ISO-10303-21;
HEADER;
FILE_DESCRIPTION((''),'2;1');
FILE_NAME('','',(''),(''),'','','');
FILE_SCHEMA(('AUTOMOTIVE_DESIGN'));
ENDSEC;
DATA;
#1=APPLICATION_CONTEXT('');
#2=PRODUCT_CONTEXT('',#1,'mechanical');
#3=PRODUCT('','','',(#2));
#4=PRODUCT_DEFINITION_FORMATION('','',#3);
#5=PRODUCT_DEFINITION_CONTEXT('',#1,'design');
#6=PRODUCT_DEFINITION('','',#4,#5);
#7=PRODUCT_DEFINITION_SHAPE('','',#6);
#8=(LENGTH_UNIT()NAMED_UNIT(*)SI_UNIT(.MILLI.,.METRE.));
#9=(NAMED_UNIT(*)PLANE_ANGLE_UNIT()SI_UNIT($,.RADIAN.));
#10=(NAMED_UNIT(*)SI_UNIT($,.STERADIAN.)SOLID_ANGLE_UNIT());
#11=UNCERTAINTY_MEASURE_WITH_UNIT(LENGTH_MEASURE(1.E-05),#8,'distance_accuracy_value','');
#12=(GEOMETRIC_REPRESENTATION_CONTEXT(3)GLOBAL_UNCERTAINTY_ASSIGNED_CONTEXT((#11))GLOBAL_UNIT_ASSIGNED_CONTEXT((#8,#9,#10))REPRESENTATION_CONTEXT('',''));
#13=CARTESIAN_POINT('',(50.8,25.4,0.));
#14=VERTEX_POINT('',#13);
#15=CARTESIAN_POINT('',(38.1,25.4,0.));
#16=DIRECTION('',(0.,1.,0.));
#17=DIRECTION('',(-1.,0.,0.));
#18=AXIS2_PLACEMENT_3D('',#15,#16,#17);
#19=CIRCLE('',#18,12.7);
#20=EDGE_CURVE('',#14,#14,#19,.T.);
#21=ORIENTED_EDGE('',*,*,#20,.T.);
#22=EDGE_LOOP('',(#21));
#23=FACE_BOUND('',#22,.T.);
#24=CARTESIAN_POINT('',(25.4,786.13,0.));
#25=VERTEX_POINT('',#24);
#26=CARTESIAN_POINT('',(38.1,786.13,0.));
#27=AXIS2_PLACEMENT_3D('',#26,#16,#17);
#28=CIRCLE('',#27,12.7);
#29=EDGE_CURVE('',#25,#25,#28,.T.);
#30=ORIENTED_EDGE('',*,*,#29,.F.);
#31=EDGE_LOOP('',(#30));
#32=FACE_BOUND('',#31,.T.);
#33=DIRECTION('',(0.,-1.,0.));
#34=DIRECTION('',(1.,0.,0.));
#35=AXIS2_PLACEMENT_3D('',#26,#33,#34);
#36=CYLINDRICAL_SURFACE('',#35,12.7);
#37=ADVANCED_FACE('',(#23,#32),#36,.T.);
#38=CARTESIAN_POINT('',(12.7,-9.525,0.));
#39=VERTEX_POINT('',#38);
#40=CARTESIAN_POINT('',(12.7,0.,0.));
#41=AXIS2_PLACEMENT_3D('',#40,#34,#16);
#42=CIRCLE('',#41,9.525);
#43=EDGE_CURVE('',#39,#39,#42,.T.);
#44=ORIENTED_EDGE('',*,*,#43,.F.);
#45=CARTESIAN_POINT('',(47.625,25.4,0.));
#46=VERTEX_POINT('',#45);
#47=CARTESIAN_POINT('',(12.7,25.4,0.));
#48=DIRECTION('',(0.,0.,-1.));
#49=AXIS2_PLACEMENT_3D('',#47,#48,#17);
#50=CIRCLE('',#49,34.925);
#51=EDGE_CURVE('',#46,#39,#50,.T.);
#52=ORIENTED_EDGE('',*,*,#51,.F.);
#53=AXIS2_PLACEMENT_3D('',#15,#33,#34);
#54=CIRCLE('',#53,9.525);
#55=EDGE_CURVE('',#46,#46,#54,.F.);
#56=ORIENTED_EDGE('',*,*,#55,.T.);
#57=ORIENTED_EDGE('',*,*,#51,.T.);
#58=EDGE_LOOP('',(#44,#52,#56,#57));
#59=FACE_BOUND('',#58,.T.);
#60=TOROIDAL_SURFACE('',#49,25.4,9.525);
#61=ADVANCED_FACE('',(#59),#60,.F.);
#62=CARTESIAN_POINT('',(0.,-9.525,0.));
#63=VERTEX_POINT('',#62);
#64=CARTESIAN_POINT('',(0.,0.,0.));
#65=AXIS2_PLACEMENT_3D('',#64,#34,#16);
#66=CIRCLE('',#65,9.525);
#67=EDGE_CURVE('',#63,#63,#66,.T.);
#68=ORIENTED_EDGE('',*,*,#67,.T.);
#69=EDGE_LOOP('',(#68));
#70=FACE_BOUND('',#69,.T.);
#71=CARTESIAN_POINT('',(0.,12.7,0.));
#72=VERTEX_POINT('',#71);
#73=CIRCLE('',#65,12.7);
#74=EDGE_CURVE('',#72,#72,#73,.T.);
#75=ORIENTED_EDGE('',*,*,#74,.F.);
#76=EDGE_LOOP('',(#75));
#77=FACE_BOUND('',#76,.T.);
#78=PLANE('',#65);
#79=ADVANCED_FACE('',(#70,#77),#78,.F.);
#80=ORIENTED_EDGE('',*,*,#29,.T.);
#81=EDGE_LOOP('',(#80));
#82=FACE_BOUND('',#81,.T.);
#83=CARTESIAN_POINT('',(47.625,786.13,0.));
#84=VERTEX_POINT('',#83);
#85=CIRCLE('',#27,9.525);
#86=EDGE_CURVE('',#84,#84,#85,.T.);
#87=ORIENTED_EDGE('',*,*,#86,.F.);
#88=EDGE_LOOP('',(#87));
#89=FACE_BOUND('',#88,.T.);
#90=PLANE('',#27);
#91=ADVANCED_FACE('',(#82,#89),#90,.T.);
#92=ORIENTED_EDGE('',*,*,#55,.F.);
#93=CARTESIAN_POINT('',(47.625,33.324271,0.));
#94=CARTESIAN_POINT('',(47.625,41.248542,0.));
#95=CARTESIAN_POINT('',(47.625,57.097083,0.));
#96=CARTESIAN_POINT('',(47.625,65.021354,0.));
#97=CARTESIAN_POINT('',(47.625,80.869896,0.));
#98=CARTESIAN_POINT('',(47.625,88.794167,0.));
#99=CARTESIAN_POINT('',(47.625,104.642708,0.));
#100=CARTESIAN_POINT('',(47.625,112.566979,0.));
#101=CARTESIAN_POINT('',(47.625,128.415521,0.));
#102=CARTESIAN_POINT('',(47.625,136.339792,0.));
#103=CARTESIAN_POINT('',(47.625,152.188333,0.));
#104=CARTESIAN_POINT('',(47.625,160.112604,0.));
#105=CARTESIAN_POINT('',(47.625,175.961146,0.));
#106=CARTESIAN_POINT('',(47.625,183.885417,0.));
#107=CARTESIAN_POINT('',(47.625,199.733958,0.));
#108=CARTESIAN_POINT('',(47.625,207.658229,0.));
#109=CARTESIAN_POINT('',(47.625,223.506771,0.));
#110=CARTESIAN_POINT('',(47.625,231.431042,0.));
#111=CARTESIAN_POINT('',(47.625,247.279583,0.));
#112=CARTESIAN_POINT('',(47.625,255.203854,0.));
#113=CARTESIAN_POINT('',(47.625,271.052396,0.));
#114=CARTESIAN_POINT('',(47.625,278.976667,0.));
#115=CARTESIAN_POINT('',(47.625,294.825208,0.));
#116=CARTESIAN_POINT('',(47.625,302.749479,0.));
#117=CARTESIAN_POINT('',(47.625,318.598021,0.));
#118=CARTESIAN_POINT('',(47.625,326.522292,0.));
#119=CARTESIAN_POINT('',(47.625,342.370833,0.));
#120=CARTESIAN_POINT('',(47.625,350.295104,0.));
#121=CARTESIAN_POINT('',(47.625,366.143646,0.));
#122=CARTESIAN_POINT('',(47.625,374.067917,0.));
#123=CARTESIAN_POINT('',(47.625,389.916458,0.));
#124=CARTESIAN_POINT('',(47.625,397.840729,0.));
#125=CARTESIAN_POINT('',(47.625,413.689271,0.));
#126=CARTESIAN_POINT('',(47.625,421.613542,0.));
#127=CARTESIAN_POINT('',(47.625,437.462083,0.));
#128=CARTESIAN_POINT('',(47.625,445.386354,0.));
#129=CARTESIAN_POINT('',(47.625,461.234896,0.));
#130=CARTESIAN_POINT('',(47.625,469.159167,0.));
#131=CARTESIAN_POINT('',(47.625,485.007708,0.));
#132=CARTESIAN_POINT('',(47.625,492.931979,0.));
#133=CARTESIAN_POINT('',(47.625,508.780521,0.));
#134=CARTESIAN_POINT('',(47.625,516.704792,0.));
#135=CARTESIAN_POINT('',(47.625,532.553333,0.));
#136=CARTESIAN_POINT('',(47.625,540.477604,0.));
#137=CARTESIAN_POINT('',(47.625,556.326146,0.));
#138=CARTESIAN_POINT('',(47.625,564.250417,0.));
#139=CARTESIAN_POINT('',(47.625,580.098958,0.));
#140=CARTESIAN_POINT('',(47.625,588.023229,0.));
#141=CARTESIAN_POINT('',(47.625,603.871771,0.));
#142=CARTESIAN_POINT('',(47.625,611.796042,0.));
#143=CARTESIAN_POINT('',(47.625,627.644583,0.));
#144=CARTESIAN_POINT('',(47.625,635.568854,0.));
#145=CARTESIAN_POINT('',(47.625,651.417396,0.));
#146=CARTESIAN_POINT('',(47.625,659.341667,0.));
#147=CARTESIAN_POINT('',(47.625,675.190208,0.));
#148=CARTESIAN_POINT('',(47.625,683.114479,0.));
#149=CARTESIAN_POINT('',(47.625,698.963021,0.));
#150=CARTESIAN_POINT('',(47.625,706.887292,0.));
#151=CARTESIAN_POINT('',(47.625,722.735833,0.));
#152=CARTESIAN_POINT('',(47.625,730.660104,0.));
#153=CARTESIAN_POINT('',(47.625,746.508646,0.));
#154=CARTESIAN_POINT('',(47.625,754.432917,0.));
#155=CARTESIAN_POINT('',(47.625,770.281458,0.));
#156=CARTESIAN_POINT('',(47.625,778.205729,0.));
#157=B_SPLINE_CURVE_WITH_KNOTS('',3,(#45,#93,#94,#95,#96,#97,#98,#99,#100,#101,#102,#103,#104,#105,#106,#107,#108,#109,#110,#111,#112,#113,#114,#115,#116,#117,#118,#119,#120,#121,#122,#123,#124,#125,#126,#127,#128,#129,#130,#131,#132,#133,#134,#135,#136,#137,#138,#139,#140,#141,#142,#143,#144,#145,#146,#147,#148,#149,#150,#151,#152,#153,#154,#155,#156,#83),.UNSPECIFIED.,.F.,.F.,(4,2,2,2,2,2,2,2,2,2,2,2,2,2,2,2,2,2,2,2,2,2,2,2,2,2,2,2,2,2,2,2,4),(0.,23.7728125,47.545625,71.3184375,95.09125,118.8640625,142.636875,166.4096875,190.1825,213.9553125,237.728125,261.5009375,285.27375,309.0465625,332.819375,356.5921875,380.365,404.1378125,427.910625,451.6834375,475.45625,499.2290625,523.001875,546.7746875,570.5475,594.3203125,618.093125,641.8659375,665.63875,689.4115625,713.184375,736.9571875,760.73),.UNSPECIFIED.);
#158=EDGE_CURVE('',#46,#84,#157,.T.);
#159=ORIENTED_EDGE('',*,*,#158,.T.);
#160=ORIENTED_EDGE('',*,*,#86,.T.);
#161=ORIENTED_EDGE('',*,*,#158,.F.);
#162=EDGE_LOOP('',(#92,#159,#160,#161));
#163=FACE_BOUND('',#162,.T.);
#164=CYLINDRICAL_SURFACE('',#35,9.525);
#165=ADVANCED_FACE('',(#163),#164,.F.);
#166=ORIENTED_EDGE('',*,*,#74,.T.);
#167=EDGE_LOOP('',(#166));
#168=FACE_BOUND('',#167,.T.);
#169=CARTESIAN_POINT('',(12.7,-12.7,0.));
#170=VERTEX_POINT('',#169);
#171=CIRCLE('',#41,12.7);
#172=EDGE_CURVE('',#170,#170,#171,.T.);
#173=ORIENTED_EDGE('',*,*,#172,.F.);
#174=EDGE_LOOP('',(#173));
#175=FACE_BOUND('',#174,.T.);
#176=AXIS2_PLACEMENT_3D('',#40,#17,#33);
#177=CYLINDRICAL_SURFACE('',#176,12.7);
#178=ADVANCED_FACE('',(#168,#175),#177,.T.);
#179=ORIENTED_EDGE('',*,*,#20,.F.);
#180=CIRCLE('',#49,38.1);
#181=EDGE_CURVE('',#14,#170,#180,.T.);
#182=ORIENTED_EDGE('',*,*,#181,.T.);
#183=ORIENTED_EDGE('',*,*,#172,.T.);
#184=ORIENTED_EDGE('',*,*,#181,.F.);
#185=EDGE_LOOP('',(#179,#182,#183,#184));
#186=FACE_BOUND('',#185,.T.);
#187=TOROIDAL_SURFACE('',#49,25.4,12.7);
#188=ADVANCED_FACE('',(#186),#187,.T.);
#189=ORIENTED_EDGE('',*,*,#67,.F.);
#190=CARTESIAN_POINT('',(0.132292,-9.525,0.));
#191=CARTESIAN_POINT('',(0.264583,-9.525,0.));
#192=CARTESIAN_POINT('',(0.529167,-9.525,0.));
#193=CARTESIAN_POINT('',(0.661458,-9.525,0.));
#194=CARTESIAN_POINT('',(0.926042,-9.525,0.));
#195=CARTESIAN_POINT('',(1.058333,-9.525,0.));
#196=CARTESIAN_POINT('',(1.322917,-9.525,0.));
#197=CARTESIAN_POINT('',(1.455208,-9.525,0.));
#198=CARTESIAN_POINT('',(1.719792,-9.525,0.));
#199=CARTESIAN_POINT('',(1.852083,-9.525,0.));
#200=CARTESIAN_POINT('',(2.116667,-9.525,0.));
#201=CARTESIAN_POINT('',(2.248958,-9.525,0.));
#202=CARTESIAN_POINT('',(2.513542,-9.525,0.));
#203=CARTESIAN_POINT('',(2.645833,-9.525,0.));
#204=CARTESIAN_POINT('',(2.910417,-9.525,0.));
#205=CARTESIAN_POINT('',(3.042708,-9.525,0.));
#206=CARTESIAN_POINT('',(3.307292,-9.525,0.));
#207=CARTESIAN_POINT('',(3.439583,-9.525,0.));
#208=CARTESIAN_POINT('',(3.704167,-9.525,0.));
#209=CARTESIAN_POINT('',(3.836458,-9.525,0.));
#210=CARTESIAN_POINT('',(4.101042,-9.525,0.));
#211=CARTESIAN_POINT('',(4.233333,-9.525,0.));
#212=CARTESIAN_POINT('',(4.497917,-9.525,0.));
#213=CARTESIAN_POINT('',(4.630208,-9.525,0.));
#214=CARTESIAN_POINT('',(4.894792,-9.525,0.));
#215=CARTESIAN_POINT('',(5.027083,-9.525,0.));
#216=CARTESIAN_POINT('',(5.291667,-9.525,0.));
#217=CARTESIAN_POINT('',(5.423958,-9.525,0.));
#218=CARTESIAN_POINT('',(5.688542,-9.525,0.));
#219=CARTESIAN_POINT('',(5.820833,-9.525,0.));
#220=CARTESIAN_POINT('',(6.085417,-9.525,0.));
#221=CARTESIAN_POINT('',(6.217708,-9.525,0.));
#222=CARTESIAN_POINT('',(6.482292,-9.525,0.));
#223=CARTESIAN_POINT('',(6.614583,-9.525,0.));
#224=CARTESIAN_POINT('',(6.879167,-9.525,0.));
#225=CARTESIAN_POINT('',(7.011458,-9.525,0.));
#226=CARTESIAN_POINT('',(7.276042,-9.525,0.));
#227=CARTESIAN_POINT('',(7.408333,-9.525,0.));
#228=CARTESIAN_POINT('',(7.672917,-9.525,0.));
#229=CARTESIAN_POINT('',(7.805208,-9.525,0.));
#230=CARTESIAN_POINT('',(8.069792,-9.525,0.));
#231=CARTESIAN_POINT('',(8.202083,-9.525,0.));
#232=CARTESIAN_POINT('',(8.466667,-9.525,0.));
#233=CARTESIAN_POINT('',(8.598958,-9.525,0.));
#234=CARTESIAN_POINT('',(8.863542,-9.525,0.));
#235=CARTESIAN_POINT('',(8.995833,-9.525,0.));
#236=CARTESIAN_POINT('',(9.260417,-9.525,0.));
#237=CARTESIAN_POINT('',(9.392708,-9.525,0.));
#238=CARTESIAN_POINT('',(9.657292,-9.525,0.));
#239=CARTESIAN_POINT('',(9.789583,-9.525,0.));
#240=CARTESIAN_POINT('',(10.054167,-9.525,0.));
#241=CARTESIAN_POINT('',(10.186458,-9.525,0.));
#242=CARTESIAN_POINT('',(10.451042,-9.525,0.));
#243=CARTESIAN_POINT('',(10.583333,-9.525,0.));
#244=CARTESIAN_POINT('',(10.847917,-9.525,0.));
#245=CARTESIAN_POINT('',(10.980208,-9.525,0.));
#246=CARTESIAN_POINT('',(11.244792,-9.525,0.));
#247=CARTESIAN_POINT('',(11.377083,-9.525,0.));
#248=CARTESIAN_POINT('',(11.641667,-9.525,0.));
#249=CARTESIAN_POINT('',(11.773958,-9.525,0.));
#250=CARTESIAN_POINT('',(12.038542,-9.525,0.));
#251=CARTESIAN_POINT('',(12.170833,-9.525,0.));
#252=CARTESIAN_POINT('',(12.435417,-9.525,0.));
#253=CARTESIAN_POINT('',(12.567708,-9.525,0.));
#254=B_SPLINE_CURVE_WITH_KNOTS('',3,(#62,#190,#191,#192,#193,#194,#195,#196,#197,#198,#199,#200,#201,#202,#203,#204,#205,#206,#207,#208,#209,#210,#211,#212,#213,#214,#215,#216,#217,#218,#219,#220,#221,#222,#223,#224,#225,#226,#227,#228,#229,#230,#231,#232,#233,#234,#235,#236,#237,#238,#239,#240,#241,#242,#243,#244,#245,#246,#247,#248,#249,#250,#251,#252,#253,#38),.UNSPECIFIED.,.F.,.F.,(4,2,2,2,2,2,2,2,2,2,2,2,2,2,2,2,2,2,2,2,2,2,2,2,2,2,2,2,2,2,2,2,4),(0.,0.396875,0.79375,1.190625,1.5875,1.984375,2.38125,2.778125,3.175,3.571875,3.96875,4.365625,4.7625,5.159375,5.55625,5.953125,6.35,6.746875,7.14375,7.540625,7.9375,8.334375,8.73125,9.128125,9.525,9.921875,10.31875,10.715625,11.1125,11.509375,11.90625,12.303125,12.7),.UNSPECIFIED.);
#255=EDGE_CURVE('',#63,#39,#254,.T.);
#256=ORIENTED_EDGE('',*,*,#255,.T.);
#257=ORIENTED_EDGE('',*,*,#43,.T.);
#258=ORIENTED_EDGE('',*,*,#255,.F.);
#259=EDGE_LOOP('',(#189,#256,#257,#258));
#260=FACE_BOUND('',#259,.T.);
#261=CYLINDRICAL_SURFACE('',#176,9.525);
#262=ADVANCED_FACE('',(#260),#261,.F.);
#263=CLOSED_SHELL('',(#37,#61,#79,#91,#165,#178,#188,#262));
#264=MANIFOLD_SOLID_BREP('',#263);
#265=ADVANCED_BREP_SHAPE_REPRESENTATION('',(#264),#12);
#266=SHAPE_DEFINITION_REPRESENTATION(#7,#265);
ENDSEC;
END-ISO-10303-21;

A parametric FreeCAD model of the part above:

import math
import FreeCAD as App
import Part
import Sketcher
from FreeCAD import Vector
Q = App.Units.Quantity


def faces_at(feature, points):
    """Names of the faces that lie closest to the given points."""
    faces = feature.Shape.Faces
    near = lambda p: min(range(len(faces)), key=lambda i: faces[i].distToShape(Part.Vertex(*p))[0])
    return sorted({f"Face{near(p) + 1}" for p in points})

doc = App.newDocument("Part")
body = doc.addObject("PartDesign::Body", "Body")

# Sketch on XZ plane
sketch1 = doc.addObject("Sketcher::SketchObject", "Sketch")
body.addObject(sketch1)
sketch1.AttachmentSupport = (doc.XZ_Plane, [""])
sketch1.MapMode = "FlatFace"
sketch1.AttachmentOffset = App.Placement(Vector(0, 0, -30.95 * 25.4), App.Rotation())
sketch1.addGeometry(Part.Circle(Vector(38, 0, 0), Vector(0, 0, 1), 13), False)
sketch1.addConstraint(Sketcher.Constraint("PointOnObject", 0, 3, -1))
sketch1.addConstraint(Sketcher.Constraint("Diameter", 0, Q("1 in")))
sketch1.addConstraint(Sketcher.Constraint("DistanceX", -1, 1, 0, 3, Q("1.5 in")))

# Sketch on XY plane
sketch2 = doc.addObject("Sketcher::SketchObject", "Sketch001")
body.addObject(sketch2)
sketch2.AttachmentSupport = (doc.XY_Plane, [""])
sketch2.MapMode = "FlatFace"
sketch2.addGeometry(Part.LineSegment(Vector(38, 786, 0), Vector(38, 25, 0)), False)
sketch2.addGeometry(Part.ArcOfCircle(Part.Circle(Vector(13, 25, 0), Vector(0, 0, 1), 25), math.radians(-90), math.radians(0)), False)
sketch2.addGeometry(Part.LineSegment(Vector(13, 0, 0), Vector(0, 0, 0)), False)
sketch2.addConstraint(Sketcher.Constraint("Tangent", 0, 2, 1, 2))
sketch2.addConstraint(Sketcher.Constraint("Tangent", 1, 1, 2, 1))
sketch2.addConstraint(Sketcher.Constraint("Vertical", 0))
sketch2.addConstraint(Sketcher.Constraint("Horizontal", 2))
sketch2.addConstraint(Sketcher.Constraint("Coincident", 2, 2, -1, 1))
sketch2.addConstraint(Sketcher.Constraint("Radius", 1, Q("1 in")))
sketch2.addConstraint(Sketcher.Constraint("DistanceX", 2, 2, 2, 1, Q("0.5 in")))
sketch2.addConstraint(Sketcher.Constraint("DistanceY", 0, 2, 0, 1, Q("29.95 in")))
doc.recompute()

additivepipe = doc.addObject("PartDesign::AdditivePipe", "AdditivePipe")
body.addObject(additivepipe)
additivepipe.Profile = sketch1
additivepipe.Spine = (sketch2, ["Edge1", "Edge2", "Edge3"])
doc.recompute()

thickness = doc.addObject("PartDesign::Thickness", "Thickness")
body.addObject(thickness)
thickness.Base = (additivepipe, faces_at(additivepipe, [(0, 0, 0), (38.1, 786.13, 0)]))
thickness.Value = Q("0.125 in")
thickness.Reversed = True
thickness.Join = "Intersection"

doc.recompute()
